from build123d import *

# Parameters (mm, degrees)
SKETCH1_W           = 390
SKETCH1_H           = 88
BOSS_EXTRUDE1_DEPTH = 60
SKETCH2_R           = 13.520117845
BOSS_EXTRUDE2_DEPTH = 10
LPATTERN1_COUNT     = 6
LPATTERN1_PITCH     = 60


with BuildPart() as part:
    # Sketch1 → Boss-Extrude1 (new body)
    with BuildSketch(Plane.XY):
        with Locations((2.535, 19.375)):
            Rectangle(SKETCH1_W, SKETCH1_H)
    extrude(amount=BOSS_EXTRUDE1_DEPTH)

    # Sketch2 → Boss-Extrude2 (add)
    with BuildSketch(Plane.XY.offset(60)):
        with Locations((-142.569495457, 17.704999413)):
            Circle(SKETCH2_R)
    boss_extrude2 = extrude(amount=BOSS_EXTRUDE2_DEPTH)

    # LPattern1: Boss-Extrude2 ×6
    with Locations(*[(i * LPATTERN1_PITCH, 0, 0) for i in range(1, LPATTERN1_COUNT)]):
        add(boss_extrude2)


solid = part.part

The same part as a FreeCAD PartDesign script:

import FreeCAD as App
import Part
import Sketcher

V = App.Vector
Q = App.Units.Quantity

doc = App.newDocument("Part")
body = doc.addObject("PartDesign::Body", "Body")

# Sketch on XY plane
sketch1 = body.newObject("Sketcher::SketchObject", "Sketch")
sketch1.AttachmentSupport = (doc.getObject("XY_Plane"), [""])
sketch1.MapMode = "FlatFace"
sketch1.addGeometry(Part.LineSegment(V(-192, 63, 0), V(-192, -25, 0)), False)
sketch1.addGeometry(Part.LineSegment(V(-192, -25, 0), V(198, -25, 0)), False)
sketch1.addGeometry(Part.LineSegment(V(198, -25, 0), V(198, 63, 0)), False)
sketch1.addGeometry(Part.LineSegment(V(198, 63, 0), V(-192, 63, 0)), False)
sketch1.addConstraint(Sketcher.Constraint("Coincident", 0, 2, 1, 1))
sketch1.addConstraint(Sketcher.Constraint("Coincident", 1, 2, 2, 1))
sketch1.addConstraint(Sketcher.Constraint("Coincident", 2, 2, 3, 1))
sketch1.addConstraint(Sketcher.Constraint("Coincident", 3, 2, 0, 1))
sketch1.addConstraint(Sketcher.Constraint("Vertical", 0))
sketch1.addConstraint(Sketcher.Constraint("Horizontal", 1))
sketch1.addConstraint(Sketcher.Constraint("Vertical", 2))
sketch1.addConstraint(Sketcher.Constraint("Horizontal", 3))
sketch1.addConstraint(Sketcher.Constraint("DistanceX", 1, 1, 1, 2, Q("390 mm")))
sketch1.addConstraint(Sketcher.Constraint("DistanceY", 0, 2, 0, 1, Q("88 mm")))
sketch1.addConstraint(Sketcher.Constraint("DistanceX", 0, 2, -1, 1, Q("192.465 mm")))
sketch1.addConstraint(Sketcher.Constraint("DistanceY", 0, 2, -1, 1, Q("24.625 mm")))
pad1 = body.newObject("PartDesign::Pad", "Pad")
pad1.Profile = sketch1
pad1.Length = 60

# Sketch on XY plane
sketch2 = body.newObject("Sketcher::SketchObject", "Sketch001")
sketch2.AttachmentSupport = (doc.getObject("XY_Plane"), [""])
sketch2.MapMode = "FlatFace"
sketch2.AttachmentOffset = App.Placement(V(0, 0, 60), App.Rotation())
sketch2.addGeometry(Part.Circle(V(-143, 18, 0), V(0, 0, 1), 14), False)
sketch2.addConstraint(Sketcher.Constraint("Diameter", 0, Q("27.040236 mm")))
sketch2.addConstraint(Sketcher.Constraint("DistanceY", -1, 1, 0, 3, Q("17.704999 mm")))
sketch2.addConstraint(Sketcher.Constraint("DistanceX", 0, 3, -1, 1, Q("142.569495 mm")))
pad2 = body.newObject("PartDesign::Pad", "Pad001")
pad2.Profile = sketch2
pad2.Length = 10
doc.recompute()

linearpattern = body.newObject("PartDesign::LinearPattern", "LinearPattern")
linearpattern.Originals = [pad2]
linearpattern.Direction = (doc.getObject("X_Axis"), [""])
linearpattern.Mode = "offset"
linearpattern.Offset = 60
linearpattern.Occurrences = 6
body.Tip = linearpattern

doc.recompute()
